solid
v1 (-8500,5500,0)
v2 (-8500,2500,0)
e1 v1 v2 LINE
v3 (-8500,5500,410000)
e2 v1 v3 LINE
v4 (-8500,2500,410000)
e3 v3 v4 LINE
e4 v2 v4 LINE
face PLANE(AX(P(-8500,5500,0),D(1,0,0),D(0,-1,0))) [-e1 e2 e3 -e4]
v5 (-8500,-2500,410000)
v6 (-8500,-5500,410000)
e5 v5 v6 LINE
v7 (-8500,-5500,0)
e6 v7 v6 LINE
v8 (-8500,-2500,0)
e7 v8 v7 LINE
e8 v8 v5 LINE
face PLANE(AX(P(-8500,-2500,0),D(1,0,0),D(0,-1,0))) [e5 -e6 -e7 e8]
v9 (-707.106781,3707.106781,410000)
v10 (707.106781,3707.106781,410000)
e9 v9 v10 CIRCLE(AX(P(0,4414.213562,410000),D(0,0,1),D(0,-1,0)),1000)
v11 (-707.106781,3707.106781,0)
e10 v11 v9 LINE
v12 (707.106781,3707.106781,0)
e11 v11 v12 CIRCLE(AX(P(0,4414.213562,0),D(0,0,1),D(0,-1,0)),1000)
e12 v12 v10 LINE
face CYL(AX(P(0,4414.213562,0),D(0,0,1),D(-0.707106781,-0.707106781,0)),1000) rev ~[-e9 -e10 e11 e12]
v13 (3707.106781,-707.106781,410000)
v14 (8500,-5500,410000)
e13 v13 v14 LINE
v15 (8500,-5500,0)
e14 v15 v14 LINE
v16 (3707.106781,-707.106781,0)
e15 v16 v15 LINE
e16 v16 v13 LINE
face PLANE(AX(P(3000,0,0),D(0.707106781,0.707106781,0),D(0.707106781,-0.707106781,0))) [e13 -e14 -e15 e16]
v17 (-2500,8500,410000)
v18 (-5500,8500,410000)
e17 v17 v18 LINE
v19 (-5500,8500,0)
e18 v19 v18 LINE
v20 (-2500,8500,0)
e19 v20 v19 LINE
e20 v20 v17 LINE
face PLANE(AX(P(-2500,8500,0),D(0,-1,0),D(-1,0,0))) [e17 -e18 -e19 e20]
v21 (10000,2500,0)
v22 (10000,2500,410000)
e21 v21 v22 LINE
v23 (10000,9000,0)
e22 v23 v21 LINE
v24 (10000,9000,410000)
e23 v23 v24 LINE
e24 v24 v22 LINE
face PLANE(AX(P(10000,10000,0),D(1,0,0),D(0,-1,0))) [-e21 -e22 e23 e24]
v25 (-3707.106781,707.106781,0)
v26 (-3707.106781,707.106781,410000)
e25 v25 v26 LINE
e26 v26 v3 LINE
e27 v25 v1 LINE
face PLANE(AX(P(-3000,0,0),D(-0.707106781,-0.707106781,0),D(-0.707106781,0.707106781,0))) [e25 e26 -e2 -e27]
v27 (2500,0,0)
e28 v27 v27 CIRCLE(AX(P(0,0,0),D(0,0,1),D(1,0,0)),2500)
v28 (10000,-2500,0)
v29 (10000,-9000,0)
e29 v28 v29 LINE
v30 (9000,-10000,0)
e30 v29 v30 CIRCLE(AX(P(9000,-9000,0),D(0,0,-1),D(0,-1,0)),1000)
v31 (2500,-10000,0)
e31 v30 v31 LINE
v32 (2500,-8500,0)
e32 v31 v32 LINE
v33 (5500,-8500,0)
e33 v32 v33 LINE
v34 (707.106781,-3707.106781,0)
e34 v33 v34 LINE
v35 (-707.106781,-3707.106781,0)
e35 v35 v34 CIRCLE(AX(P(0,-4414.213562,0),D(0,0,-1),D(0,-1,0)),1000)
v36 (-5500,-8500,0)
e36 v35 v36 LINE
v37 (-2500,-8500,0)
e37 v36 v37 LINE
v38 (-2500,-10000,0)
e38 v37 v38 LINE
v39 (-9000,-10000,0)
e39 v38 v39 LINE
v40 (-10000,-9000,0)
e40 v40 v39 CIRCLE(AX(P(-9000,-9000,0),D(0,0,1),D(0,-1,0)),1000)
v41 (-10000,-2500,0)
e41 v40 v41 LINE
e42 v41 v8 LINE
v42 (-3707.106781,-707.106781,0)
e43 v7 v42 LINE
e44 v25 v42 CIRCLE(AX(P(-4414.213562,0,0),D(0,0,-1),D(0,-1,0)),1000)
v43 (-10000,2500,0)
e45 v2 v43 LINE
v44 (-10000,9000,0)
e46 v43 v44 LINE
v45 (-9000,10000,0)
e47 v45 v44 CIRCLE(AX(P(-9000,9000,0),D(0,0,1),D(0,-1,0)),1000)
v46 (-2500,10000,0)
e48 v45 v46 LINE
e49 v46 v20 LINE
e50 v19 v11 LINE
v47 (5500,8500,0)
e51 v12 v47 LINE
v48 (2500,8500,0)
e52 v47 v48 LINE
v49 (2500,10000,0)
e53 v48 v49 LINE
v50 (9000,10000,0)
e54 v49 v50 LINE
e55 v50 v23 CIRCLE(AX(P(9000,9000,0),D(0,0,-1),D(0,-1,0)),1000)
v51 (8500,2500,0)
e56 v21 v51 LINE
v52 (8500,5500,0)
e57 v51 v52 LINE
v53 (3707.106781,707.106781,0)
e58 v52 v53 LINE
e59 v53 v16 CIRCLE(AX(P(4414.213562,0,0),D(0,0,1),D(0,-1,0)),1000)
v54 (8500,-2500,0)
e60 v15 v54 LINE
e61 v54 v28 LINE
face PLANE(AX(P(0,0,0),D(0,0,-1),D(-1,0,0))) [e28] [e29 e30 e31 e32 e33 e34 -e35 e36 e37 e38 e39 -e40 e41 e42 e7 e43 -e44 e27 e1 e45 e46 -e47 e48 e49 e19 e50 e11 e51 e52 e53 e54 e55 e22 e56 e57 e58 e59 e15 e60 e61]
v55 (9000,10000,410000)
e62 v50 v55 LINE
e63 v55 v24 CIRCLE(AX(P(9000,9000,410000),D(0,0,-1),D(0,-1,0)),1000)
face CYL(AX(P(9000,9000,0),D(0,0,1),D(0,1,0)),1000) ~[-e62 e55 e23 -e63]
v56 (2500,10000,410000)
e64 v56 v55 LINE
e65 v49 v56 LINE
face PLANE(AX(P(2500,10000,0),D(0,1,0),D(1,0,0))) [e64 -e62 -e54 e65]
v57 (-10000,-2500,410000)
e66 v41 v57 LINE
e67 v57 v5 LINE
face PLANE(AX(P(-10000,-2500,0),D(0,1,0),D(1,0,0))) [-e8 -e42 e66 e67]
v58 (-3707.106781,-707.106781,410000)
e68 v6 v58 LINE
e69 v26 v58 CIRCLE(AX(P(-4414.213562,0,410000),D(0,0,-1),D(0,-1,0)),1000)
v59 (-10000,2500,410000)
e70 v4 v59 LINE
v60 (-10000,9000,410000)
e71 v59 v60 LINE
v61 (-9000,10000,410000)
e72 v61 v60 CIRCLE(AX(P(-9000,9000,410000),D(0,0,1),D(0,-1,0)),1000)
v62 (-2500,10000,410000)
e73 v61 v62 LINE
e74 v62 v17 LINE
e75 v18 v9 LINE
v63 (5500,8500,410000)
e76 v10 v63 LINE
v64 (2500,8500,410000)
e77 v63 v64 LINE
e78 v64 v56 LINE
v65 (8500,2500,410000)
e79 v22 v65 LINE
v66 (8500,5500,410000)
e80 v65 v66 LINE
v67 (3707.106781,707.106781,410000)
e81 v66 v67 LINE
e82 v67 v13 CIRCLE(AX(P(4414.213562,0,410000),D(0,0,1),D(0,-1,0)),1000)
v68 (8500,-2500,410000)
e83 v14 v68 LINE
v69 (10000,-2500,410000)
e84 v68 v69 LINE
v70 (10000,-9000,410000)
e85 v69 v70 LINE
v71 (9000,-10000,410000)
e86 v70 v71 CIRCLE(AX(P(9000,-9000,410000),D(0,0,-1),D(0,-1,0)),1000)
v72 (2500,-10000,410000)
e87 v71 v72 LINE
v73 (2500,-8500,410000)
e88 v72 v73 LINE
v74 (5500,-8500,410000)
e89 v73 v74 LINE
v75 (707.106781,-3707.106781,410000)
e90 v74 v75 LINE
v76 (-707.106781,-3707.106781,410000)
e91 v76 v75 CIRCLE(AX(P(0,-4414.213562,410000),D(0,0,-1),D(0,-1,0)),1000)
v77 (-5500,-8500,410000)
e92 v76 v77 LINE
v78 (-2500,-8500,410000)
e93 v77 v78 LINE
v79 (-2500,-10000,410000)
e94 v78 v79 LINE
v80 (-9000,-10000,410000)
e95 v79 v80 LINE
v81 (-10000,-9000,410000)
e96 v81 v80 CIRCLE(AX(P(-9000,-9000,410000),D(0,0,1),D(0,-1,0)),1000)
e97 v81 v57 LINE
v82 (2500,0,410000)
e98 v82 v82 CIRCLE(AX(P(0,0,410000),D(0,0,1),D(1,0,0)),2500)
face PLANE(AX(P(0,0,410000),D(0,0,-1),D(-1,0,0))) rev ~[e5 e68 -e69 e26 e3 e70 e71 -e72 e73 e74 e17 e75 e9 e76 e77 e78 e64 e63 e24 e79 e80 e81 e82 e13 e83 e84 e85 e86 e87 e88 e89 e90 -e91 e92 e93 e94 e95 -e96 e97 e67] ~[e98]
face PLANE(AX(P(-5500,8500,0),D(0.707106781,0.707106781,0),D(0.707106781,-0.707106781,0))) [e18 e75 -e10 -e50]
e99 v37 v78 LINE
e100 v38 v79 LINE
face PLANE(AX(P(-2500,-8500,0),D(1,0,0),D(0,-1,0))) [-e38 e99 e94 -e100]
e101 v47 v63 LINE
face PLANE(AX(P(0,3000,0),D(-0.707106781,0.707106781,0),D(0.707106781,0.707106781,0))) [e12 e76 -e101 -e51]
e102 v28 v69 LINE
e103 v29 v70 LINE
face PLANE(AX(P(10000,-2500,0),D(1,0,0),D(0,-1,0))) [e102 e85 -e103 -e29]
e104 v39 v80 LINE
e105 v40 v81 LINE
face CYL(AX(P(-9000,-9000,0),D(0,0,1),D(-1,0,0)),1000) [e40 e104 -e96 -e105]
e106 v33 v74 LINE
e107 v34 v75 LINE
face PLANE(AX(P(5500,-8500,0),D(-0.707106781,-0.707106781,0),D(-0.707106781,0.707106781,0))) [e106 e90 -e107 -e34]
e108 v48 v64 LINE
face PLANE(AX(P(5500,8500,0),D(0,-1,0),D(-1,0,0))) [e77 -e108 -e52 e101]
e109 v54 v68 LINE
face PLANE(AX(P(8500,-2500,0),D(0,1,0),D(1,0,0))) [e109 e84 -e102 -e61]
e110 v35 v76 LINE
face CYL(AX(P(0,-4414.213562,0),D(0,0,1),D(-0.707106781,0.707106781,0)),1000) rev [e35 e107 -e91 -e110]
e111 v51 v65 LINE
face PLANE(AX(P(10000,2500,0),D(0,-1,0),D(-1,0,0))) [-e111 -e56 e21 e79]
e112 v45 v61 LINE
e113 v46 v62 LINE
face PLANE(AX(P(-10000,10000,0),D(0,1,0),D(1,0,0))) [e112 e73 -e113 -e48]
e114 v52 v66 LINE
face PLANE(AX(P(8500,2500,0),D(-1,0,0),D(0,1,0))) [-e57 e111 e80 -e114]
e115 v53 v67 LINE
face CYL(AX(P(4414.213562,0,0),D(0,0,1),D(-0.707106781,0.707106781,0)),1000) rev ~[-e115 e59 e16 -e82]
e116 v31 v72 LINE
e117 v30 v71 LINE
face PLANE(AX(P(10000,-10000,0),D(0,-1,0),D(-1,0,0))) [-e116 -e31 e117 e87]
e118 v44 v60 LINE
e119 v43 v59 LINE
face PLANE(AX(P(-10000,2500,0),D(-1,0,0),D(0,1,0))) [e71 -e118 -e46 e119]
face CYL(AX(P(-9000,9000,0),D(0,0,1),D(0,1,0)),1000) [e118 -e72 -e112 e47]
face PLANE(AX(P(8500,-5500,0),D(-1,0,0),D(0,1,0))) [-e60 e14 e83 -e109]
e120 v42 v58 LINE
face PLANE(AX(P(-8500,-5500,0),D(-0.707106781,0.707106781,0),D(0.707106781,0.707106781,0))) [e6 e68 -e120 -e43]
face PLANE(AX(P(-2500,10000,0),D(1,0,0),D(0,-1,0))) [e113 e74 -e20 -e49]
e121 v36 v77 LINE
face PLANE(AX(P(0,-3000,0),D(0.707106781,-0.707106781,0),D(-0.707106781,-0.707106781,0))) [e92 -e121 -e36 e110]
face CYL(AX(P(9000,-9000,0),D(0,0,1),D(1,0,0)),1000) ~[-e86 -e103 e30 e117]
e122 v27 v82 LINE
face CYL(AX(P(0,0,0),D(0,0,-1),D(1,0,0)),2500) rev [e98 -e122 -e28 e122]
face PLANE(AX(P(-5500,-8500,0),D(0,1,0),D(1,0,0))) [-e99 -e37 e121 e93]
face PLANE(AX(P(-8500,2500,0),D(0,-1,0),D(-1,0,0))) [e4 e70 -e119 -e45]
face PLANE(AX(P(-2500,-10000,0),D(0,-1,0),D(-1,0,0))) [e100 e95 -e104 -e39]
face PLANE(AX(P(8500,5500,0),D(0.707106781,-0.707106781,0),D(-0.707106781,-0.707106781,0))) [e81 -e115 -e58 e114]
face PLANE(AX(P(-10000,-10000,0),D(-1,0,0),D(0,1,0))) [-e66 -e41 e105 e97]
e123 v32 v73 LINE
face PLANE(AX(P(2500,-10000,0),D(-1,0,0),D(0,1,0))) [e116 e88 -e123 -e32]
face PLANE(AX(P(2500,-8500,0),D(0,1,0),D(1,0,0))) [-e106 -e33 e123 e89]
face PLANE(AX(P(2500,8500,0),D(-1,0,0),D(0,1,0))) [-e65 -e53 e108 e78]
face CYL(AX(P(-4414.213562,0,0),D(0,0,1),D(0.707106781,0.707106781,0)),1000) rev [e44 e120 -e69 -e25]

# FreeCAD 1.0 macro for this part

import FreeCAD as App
import Part
import Sketcher

V = App.Vector


def edges_at(feature, points):
    """Names of the edges that pass closest to the given points."""
    edges = feature.Shape.Edges
    near = lambda p: min(range(len(edges)), key=lambda i: edges[i].distToShape(Part.Vertex(*p))[0])
    return sorted({f"Edge{near(p) + 1}" for p in points})


def add_polygon(sketch, points):
    """Adds a closed chain of lines whose ends are joined by coincident constraints."""
    first, n = sketch.GeometryCount, len(points)
    for a, b in zip(points, points[1:] + points[:1]):
        sketch.addGeometry(Part.LineSegment(App.Vector(*a, 0), App.Vector(*b, 0)), False)
    for i in range(n):
        sketch.addConstraint(Sketcher.Constraint("Coincident", first + i, 2, first + (i + 1) % n, 1))

doc = App.newDocument("Part")
body = doc.addObject("PartDesign::Body", "Body")

# Sketch on XY plane
sketch1 = body.newObject("Sketcher::SketchObject", "Sketch")
sketch1.AttachmentSupport = (doc.getObject("XY_Plane"), [""])
sketch1.MapMode = "FlatFace"
add_polygon(sketch1, [(-2500, 8500), (-2500, 10000), (-10000, 10000), (-10000, 2500), (-8500, 2500), (-8500, 5500), (-3000, 0), (-8500, -5500), (-8500, -2500), (-10000, -2500), (-10000, -10000), (-2500, -10000), (-2500, -8500), (-5500, -8500), (0, -3000), (5500, -8500), (2500, -8500), (2500, -10000), (10000, -10000), (10000, -2500), (8500, -2500), (8500, -5500), (3000, 0), (8500, 5500), (8500, 2500), (10000, 2500), (10000, 10000), (2500, 10000), (2500, 8500), (5500, 8500), (0, 3000), (-5500, 8500)])  # lines 0-31
sketch1.addGeometry(Part.Circle(V(0, 0, 0), V(0, 0, 1), 2500), False)  # 32
sketch1.addConstraint(Sketcher.Constraint("Vertical", 0))
sketch1.addConstraint(Sketcher.Constraint("Horizontal", 1))
sketch1.addConstraint(Sketcher.Constraint("Vertical", 2))
sketch1.addConstraint(Sketcher.Constraint("Horizontal", 3))
sketch1.addConstraint(Sketcher.Constraint("Vertical", 4))
sketch1.addConstraint(Sketcher.Constraint("Vertical", 7))
sketch1.addConstraint(Sketcher.Constraint("Horizontal", 8))
sketch1.addConstraint(Sketcher.Constraint("Vertical", 9))
sketch1.addConstraint(Sketcher.Constraint("Horizontal", 10))
sketch1.addConstraint(Sketcher.Constraint("Vertical", 11))
sketch1.addConstraint(Sketcher.Constraint("Horizontal", 12))
sketch1.addConstraint(Sketcher.Constraint("Horizontal", 15))
sketch1.addConstraint(Sketcher.Constraint("Vertical", 16))
sketch1.addConstraint(Sketcher.Constraint("Horizontal", 17))
sketch1.addConstraint(Sketcher.Constraint("Vertical", 18))
sketch1.addConstraint(Sketcher.Constraint("Horizontal", 19))
sketch1.addConstraint(Sketcher.Constraint("Vertical", 20))
sketch1.addConstraint(Sketcher.Constraint("Vertical", 23))
sketch1.addConstraint(Sketcher.Constraint("Horizontal", 24))
sketch1.addConstraint(Sketcher.Constraint("Vertical", 25))
sketch1.addConstraint(Sketcher.Constraint("Horizontal", 26))
sketch1.addConstraint(Sketcher.Constraint("Vertical", 27))
sketch1.addConstraint(Sketcher.Constraint("Horizontal", 28))
sketch1.addConstraint(Sketcher.Constraint("Horizontal", 31))
sketch1.addConstraint(Sketcher.Constraint("Coincident", 32, 3, -1, 1))
sketch1.addConstraint(Sketcher.Constraint("Symmetric", 0, 2, 16, 2, -1, 1))
sketch1.addConstraint(Sketcher.Constraint("Symmetric", 2, 2, 18, 2, -1, 1))
sketch1.addConstraint(Sketcher.Constraint("Symmetric", 4, 2, 20, 2, -1, 1))
sketch1.addConstraint(Sketcher.Constraint("Symmetric", 5, 2, 21, 2, -1, 1))
sketch1.addConstraint(Sketcher.Constraint("Symmetric", 6, 2, 22, 2, -1, 1))
sketch1.addConstraint(Sketcher.Constraint("Symmetric", 8, 2, 24, 2, -1, 1))
sketch1.addConstraint(Sketcher.Constraint("Symmetric", 10, 2, 26, 2, -1, 1))
sketch1.addConstraint(Sketcher.Constraint("Symmetric", 12, 2, 28, 2, -1, 1))
sketch1.addConstraint(Sketcher.Constraint("Symmetric", 13, 2, 29, 2, -1, 1))
sketch1.addConstraint(Sketcher.Constraint("Symmetric", 14, 2, 30, 2, -1, 1))
sketch1.addConstraint(Sketcher.Constraint("Symmetric", 12, 2, 14, 2, -2))
sketch1.addConstraint(Sketcher.Constraint("Symmetric", 10, 2, 16, 2, -2))
sketch1.addConstraint(Sketcher.Constraint("Symmetric", 8, 2, 18, 2, -2))
sketch1.addConstraint(Sketcher.Constraint("Symmetric", 6, 2, 20, 2, -2))
sketch1.addConstraint(Sketcher.Constraint("PointOnObject", 5, 2, -1))
sketch1.addConstraint(Sketcher.Constraint("PointOnObject", 13, 2, -2))
sketch1.addConstraint(Sketcher.Constraint("Perpendicular", 5, 6))
sketch1.addConstraint(Sketcher.Constraint("Parallel", 6, 13))
sketch1.addConstraint(Sketcher.Constraint("Equal", 24, 0))
sketch1.addConstraint(Sketcher.Constraint("Equal", 26, 2))
sketch1.addConstraint(Sketcher.Constraint("Equal", 31, 4))
sketch1.addConstraint(Sketcher.Constraint("Equal", 6, 13))
sketch1.addConstraint(Sketcher.Constraint("Diameter", 32, 5000.0))
sketch1.addConstraint(Sketcher.Constraint("DistanceX", 1, 2, 1, 1, 7500.0))
sketch1.addConstraint(Sketcher.Constraint("DistanceX", 3, 1, 3, 2, 1500.0))
sketch1.addConstraint(Sketcher.Constraint("DistanceX", 12, 2, 12, 1, 3000.0))
sketch1.addConstraint(Sketcher.Constraint("DistanceX", 0, 2, -1, 1, 2500.0))
pad1 = body.newObject("PartDesign::Pad", "Pad")
pad1.Profile = sketch1
pad1.Length = 410000
doc.recompute()

fillet = body.newObject("PartDesign::Fillet", "Fillet")
fillet.Base = (pad1, edges_at(pad1, [
    (0, -3000, 205000),
    (-3000, 0, 205000),
    (0, 3000, 205000),
    (3000, 0, 205000),
]))
fillet.Radius = 1000
doc.recompute()

fillet2 = body.newObject("PartDesign::Fillet", "Fillet001")
fillet2.Base = (fillet, edges_at(fillet, [
    (-10000, -10000, 205000),
    (-10000, 10000, 205000),
    (10000, 10000, 205000),
    (10000, -10000, 205000),
]))
fillet2.Radius = 1000

doc.recompute()
